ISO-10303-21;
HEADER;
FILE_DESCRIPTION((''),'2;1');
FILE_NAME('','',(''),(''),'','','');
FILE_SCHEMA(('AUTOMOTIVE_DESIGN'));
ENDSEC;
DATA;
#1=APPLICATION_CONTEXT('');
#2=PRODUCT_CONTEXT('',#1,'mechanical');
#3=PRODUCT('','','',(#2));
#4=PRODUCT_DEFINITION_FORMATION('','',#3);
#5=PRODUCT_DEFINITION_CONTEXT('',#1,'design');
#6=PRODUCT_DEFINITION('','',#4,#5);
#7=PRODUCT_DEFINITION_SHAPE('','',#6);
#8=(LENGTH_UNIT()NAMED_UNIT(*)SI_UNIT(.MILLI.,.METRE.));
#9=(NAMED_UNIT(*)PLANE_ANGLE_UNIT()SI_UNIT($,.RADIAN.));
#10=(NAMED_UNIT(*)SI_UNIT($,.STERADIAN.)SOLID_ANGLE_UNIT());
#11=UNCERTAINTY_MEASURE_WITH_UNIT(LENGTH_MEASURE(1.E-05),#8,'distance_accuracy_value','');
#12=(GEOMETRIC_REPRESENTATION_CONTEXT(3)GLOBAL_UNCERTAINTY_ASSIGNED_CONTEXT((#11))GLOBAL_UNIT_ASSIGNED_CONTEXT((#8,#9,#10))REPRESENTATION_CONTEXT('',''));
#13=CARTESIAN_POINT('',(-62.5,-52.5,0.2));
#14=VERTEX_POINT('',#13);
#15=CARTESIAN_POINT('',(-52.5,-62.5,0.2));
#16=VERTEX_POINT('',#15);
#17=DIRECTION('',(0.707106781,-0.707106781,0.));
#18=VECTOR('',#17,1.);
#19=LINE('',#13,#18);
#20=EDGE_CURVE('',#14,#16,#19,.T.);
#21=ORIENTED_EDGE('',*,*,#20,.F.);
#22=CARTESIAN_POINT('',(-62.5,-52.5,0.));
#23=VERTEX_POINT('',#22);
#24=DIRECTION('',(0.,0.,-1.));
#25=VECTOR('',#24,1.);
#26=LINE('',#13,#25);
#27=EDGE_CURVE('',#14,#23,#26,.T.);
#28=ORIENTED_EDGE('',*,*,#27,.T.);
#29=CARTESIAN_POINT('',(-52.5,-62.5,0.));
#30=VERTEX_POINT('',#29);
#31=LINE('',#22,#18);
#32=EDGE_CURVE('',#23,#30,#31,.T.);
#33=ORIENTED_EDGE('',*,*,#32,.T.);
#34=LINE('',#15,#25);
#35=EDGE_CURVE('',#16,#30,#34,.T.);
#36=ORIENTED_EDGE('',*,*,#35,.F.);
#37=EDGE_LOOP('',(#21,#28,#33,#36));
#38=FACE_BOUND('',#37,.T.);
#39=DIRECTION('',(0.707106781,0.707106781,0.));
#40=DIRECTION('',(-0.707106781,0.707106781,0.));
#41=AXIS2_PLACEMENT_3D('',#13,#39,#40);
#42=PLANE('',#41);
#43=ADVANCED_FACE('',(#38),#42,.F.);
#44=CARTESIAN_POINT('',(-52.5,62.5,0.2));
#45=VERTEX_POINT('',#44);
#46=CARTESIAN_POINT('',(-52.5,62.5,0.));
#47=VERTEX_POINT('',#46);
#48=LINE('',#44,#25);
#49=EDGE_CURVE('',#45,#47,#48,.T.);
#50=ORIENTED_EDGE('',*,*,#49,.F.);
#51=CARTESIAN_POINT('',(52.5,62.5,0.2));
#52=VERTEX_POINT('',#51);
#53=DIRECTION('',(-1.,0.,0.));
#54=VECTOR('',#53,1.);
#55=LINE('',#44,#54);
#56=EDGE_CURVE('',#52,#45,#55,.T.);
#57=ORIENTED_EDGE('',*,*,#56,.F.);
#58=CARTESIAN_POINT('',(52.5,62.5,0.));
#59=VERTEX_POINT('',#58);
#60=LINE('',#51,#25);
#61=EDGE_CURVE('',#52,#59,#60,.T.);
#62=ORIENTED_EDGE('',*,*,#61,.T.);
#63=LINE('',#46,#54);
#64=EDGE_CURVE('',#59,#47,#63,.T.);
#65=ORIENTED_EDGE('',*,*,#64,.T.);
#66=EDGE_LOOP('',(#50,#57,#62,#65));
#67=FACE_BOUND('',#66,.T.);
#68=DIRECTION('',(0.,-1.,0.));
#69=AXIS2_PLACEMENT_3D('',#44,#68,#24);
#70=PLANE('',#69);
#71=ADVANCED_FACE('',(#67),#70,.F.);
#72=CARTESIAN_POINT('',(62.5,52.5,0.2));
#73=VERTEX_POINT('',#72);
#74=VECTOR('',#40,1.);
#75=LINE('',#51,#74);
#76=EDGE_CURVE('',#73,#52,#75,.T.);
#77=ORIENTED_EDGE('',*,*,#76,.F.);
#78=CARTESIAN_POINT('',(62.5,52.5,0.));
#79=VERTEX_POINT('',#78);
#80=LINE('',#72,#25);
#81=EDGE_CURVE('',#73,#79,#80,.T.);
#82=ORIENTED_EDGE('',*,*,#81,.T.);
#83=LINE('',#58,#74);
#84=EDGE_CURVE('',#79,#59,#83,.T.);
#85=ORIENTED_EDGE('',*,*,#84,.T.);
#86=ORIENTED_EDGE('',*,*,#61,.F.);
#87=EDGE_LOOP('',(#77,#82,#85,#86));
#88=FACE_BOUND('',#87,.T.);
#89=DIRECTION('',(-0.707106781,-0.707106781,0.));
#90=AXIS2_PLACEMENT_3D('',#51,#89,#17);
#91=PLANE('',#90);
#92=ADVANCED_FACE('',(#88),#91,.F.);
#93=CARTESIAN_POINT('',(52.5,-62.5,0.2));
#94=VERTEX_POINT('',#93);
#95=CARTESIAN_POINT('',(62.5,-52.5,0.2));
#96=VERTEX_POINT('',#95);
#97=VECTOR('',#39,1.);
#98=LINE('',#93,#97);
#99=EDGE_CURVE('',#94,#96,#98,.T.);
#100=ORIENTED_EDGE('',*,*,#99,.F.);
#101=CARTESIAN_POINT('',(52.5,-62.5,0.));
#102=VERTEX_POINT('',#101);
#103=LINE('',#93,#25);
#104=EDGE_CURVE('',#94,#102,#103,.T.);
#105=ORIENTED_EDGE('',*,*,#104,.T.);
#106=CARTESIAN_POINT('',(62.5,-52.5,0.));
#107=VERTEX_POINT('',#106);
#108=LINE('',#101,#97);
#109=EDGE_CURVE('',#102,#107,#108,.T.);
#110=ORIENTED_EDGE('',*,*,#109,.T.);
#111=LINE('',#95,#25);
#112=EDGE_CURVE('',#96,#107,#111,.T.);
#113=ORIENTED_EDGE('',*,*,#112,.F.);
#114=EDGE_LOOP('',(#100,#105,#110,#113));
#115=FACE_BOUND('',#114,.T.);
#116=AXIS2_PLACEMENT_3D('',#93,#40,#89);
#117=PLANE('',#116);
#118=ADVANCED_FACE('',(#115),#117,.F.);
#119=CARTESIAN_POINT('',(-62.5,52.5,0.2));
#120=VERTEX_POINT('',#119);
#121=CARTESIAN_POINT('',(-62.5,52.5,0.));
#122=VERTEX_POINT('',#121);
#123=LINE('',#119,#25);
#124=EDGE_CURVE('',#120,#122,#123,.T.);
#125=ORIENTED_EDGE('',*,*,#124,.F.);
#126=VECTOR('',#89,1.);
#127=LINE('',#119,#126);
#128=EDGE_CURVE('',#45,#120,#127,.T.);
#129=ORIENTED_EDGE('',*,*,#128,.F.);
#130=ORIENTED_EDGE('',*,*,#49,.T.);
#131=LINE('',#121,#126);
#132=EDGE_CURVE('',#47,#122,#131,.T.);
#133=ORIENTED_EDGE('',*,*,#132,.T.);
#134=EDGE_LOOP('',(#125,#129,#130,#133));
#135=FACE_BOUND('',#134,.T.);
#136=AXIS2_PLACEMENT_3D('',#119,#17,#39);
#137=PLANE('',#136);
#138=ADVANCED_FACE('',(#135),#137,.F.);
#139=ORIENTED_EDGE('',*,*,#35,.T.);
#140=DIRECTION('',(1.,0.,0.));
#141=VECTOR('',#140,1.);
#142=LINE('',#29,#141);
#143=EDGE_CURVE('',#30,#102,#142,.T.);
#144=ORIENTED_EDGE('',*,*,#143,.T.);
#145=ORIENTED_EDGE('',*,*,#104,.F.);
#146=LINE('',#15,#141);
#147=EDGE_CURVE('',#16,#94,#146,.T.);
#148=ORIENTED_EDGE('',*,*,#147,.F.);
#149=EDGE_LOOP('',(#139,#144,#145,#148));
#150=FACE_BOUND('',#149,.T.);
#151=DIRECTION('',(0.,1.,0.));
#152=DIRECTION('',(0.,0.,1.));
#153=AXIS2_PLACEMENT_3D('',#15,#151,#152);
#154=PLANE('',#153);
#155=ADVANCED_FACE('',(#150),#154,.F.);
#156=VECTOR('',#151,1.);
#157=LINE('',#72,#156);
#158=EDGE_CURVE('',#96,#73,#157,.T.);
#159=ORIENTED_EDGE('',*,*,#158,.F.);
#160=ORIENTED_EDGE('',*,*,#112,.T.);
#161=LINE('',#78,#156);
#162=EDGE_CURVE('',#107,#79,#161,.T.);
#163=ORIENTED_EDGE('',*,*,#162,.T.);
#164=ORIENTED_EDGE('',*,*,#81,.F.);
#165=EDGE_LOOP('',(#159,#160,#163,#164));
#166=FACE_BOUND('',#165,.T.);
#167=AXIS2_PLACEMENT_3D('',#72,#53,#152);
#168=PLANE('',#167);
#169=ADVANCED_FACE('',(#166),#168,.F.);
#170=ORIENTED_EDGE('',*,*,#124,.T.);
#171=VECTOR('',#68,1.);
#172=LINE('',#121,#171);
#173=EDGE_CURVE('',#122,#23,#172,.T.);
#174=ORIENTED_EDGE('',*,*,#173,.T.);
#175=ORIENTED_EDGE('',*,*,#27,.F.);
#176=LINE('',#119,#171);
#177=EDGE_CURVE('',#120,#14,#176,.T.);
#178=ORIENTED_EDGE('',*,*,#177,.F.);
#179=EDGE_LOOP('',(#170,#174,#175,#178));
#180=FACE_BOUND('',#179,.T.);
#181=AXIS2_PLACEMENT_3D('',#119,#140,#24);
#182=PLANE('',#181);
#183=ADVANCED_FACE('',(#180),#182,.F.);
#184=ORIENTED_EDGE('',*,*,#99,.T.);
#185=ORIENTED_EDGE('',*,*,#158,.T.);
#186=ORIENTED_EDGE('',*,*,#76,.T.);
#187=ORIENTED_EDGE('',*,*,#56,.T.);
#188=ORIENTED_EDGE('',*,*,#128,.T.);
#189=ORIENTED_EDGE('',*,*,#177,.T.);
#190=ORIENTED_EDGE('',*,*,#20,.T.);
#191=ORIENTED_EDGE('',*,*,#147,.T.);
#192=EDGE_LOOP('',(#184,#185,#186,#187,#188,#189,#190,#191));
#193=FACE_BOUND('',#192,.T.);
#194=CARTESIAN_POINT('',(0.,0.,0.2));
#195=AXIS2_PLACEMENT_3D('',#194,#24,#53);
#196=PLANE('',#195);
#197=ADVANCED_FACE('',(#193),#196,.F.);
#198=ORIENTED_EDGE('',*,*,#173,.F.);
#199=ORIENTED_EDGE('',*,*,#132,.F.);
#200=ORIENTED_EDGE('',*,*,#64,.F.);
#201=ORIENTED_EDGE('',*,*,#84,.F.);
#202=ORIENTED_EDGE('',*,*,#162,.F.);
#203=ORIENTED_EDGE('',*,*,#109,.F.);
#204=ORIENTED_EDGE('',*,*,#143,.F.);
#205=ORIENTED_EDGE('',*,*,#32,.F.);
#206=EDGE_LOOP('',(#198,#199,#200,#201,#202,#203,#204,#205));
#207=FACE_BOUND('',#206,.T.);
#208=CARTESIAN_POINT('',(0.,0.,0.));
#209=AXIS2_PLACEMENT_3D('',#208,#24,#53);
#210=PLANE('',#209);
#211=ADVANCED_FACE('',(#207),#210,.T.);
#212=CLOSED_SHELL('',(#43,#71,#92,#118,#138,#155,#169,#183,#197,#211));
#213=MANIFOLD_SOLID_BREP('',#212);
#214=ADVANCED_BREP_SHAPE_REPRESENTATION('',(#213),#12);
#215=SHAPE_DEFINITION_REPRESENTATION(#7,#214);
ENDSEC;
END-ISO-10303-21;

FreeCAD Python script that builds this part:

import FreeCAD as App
import Part
import Sketcher
Q = App.Units.Quantity

doc = App.newDocument("Part")
body = doc.addObject("PartDesign::Body", "Body")

sketch1 = doc.addObject("Sketcher::SketchObject", "Sketch")
body.addObject(sketch1)
sketch1.AttachmentSupport = (doc.XY_Plane, [""])
sketch1.MapMode = "FlatFace"
sketch1.addGeometry([
    Part.LineSegment(App.Vector(62, 52, 0), App.Vector(52, 62, 0)),
    Part.LineSegment(App.Vector(52, 62, 0), App.Vector(-52, 62, 0)),
    Part.LineSegment(App.Vector(-52, 62, 0), App.Vector(-62, 52, 0)),
    Part.LineSegment(App.Vector(-62, 52, 0), App.Vector(-62, -52, 0)),
    Part.LineSegment(App.Vector(-62, -52, 0), App.Vector(-52, -62, 0)),
    Part.LineSegment(App.Vector(-52, -62, 0), App.Vector(52, -62, 0)),
    Part.LineSegment(App.Vector(52, -62, 0), App.Vector(62, -52, 0)),
    Part.LineSegment(App.Vector(62, -52, 0), App.Vector(62, 52, 0)),
], False)
sketch1.addConstraint([
    Sketcher.Constraint("Coincident", 0, 2, 1, 1),
    Sketcher.Constraint("Coincident", 1, 2, 2, 1),
    Sketcher.Constraint("Coincident", 2, 2, 3, 1),
    Sketcher.Constraint("Coincident", 3, 2, 4, 1),
    Sketcher.Constraint("Coincident", 4, 2, 5, 1),
    Sketcher.Constraint("Coincident", 5, 2, 6, 1),
    Sketcher.Constraint("Coincident", 6, 2, 7, 1),
    Sketcher.Constraint("Coincident", 7, 2, 0, 1),
    Sketcher.Constraint("Horizontal", 1),
    Sketcher.Constraint("Vertical", 3),
    Sketcher.Constraint("Horizontal", 5),
    Sketcher.Constraint("Vertical", 7),
    Sketcher.Constraint("Symmetric", 0, 2, 4, 2, -1, 1),
    Sketcher.Constraint("Symmetric", 2, 2, 6, 2, -1, 1),
    Sketcher.Constraint("Perpendicular", 0, 2),
    Sketcher.Constraint("Perpendicular", 2, 4),
    Sketcher.Constraint("Perpendicular", 4, 6),
    Sketcher.Constraint("Horizontal", 3, 2, 6, 2),
    Sketcher.Constraint("Vertical", 1, 2, 4, 2),
    Sketcher.Constraint("Equal", 5, 3),
    Sketcher.Constraint("DistanceX", 1, 2, 1, 1, Q("105 mm")),
    Sketcher.Constraint("DistanceX", 2, 2, 1, 2, Q("10 mm")),
])
pad1 = doc.addObject("PartDesign::Pad", "Pad")
body.addObject(pad1)
pad1.Profile = sketch1
pad1.Length = 0.2

doc.recompute()
